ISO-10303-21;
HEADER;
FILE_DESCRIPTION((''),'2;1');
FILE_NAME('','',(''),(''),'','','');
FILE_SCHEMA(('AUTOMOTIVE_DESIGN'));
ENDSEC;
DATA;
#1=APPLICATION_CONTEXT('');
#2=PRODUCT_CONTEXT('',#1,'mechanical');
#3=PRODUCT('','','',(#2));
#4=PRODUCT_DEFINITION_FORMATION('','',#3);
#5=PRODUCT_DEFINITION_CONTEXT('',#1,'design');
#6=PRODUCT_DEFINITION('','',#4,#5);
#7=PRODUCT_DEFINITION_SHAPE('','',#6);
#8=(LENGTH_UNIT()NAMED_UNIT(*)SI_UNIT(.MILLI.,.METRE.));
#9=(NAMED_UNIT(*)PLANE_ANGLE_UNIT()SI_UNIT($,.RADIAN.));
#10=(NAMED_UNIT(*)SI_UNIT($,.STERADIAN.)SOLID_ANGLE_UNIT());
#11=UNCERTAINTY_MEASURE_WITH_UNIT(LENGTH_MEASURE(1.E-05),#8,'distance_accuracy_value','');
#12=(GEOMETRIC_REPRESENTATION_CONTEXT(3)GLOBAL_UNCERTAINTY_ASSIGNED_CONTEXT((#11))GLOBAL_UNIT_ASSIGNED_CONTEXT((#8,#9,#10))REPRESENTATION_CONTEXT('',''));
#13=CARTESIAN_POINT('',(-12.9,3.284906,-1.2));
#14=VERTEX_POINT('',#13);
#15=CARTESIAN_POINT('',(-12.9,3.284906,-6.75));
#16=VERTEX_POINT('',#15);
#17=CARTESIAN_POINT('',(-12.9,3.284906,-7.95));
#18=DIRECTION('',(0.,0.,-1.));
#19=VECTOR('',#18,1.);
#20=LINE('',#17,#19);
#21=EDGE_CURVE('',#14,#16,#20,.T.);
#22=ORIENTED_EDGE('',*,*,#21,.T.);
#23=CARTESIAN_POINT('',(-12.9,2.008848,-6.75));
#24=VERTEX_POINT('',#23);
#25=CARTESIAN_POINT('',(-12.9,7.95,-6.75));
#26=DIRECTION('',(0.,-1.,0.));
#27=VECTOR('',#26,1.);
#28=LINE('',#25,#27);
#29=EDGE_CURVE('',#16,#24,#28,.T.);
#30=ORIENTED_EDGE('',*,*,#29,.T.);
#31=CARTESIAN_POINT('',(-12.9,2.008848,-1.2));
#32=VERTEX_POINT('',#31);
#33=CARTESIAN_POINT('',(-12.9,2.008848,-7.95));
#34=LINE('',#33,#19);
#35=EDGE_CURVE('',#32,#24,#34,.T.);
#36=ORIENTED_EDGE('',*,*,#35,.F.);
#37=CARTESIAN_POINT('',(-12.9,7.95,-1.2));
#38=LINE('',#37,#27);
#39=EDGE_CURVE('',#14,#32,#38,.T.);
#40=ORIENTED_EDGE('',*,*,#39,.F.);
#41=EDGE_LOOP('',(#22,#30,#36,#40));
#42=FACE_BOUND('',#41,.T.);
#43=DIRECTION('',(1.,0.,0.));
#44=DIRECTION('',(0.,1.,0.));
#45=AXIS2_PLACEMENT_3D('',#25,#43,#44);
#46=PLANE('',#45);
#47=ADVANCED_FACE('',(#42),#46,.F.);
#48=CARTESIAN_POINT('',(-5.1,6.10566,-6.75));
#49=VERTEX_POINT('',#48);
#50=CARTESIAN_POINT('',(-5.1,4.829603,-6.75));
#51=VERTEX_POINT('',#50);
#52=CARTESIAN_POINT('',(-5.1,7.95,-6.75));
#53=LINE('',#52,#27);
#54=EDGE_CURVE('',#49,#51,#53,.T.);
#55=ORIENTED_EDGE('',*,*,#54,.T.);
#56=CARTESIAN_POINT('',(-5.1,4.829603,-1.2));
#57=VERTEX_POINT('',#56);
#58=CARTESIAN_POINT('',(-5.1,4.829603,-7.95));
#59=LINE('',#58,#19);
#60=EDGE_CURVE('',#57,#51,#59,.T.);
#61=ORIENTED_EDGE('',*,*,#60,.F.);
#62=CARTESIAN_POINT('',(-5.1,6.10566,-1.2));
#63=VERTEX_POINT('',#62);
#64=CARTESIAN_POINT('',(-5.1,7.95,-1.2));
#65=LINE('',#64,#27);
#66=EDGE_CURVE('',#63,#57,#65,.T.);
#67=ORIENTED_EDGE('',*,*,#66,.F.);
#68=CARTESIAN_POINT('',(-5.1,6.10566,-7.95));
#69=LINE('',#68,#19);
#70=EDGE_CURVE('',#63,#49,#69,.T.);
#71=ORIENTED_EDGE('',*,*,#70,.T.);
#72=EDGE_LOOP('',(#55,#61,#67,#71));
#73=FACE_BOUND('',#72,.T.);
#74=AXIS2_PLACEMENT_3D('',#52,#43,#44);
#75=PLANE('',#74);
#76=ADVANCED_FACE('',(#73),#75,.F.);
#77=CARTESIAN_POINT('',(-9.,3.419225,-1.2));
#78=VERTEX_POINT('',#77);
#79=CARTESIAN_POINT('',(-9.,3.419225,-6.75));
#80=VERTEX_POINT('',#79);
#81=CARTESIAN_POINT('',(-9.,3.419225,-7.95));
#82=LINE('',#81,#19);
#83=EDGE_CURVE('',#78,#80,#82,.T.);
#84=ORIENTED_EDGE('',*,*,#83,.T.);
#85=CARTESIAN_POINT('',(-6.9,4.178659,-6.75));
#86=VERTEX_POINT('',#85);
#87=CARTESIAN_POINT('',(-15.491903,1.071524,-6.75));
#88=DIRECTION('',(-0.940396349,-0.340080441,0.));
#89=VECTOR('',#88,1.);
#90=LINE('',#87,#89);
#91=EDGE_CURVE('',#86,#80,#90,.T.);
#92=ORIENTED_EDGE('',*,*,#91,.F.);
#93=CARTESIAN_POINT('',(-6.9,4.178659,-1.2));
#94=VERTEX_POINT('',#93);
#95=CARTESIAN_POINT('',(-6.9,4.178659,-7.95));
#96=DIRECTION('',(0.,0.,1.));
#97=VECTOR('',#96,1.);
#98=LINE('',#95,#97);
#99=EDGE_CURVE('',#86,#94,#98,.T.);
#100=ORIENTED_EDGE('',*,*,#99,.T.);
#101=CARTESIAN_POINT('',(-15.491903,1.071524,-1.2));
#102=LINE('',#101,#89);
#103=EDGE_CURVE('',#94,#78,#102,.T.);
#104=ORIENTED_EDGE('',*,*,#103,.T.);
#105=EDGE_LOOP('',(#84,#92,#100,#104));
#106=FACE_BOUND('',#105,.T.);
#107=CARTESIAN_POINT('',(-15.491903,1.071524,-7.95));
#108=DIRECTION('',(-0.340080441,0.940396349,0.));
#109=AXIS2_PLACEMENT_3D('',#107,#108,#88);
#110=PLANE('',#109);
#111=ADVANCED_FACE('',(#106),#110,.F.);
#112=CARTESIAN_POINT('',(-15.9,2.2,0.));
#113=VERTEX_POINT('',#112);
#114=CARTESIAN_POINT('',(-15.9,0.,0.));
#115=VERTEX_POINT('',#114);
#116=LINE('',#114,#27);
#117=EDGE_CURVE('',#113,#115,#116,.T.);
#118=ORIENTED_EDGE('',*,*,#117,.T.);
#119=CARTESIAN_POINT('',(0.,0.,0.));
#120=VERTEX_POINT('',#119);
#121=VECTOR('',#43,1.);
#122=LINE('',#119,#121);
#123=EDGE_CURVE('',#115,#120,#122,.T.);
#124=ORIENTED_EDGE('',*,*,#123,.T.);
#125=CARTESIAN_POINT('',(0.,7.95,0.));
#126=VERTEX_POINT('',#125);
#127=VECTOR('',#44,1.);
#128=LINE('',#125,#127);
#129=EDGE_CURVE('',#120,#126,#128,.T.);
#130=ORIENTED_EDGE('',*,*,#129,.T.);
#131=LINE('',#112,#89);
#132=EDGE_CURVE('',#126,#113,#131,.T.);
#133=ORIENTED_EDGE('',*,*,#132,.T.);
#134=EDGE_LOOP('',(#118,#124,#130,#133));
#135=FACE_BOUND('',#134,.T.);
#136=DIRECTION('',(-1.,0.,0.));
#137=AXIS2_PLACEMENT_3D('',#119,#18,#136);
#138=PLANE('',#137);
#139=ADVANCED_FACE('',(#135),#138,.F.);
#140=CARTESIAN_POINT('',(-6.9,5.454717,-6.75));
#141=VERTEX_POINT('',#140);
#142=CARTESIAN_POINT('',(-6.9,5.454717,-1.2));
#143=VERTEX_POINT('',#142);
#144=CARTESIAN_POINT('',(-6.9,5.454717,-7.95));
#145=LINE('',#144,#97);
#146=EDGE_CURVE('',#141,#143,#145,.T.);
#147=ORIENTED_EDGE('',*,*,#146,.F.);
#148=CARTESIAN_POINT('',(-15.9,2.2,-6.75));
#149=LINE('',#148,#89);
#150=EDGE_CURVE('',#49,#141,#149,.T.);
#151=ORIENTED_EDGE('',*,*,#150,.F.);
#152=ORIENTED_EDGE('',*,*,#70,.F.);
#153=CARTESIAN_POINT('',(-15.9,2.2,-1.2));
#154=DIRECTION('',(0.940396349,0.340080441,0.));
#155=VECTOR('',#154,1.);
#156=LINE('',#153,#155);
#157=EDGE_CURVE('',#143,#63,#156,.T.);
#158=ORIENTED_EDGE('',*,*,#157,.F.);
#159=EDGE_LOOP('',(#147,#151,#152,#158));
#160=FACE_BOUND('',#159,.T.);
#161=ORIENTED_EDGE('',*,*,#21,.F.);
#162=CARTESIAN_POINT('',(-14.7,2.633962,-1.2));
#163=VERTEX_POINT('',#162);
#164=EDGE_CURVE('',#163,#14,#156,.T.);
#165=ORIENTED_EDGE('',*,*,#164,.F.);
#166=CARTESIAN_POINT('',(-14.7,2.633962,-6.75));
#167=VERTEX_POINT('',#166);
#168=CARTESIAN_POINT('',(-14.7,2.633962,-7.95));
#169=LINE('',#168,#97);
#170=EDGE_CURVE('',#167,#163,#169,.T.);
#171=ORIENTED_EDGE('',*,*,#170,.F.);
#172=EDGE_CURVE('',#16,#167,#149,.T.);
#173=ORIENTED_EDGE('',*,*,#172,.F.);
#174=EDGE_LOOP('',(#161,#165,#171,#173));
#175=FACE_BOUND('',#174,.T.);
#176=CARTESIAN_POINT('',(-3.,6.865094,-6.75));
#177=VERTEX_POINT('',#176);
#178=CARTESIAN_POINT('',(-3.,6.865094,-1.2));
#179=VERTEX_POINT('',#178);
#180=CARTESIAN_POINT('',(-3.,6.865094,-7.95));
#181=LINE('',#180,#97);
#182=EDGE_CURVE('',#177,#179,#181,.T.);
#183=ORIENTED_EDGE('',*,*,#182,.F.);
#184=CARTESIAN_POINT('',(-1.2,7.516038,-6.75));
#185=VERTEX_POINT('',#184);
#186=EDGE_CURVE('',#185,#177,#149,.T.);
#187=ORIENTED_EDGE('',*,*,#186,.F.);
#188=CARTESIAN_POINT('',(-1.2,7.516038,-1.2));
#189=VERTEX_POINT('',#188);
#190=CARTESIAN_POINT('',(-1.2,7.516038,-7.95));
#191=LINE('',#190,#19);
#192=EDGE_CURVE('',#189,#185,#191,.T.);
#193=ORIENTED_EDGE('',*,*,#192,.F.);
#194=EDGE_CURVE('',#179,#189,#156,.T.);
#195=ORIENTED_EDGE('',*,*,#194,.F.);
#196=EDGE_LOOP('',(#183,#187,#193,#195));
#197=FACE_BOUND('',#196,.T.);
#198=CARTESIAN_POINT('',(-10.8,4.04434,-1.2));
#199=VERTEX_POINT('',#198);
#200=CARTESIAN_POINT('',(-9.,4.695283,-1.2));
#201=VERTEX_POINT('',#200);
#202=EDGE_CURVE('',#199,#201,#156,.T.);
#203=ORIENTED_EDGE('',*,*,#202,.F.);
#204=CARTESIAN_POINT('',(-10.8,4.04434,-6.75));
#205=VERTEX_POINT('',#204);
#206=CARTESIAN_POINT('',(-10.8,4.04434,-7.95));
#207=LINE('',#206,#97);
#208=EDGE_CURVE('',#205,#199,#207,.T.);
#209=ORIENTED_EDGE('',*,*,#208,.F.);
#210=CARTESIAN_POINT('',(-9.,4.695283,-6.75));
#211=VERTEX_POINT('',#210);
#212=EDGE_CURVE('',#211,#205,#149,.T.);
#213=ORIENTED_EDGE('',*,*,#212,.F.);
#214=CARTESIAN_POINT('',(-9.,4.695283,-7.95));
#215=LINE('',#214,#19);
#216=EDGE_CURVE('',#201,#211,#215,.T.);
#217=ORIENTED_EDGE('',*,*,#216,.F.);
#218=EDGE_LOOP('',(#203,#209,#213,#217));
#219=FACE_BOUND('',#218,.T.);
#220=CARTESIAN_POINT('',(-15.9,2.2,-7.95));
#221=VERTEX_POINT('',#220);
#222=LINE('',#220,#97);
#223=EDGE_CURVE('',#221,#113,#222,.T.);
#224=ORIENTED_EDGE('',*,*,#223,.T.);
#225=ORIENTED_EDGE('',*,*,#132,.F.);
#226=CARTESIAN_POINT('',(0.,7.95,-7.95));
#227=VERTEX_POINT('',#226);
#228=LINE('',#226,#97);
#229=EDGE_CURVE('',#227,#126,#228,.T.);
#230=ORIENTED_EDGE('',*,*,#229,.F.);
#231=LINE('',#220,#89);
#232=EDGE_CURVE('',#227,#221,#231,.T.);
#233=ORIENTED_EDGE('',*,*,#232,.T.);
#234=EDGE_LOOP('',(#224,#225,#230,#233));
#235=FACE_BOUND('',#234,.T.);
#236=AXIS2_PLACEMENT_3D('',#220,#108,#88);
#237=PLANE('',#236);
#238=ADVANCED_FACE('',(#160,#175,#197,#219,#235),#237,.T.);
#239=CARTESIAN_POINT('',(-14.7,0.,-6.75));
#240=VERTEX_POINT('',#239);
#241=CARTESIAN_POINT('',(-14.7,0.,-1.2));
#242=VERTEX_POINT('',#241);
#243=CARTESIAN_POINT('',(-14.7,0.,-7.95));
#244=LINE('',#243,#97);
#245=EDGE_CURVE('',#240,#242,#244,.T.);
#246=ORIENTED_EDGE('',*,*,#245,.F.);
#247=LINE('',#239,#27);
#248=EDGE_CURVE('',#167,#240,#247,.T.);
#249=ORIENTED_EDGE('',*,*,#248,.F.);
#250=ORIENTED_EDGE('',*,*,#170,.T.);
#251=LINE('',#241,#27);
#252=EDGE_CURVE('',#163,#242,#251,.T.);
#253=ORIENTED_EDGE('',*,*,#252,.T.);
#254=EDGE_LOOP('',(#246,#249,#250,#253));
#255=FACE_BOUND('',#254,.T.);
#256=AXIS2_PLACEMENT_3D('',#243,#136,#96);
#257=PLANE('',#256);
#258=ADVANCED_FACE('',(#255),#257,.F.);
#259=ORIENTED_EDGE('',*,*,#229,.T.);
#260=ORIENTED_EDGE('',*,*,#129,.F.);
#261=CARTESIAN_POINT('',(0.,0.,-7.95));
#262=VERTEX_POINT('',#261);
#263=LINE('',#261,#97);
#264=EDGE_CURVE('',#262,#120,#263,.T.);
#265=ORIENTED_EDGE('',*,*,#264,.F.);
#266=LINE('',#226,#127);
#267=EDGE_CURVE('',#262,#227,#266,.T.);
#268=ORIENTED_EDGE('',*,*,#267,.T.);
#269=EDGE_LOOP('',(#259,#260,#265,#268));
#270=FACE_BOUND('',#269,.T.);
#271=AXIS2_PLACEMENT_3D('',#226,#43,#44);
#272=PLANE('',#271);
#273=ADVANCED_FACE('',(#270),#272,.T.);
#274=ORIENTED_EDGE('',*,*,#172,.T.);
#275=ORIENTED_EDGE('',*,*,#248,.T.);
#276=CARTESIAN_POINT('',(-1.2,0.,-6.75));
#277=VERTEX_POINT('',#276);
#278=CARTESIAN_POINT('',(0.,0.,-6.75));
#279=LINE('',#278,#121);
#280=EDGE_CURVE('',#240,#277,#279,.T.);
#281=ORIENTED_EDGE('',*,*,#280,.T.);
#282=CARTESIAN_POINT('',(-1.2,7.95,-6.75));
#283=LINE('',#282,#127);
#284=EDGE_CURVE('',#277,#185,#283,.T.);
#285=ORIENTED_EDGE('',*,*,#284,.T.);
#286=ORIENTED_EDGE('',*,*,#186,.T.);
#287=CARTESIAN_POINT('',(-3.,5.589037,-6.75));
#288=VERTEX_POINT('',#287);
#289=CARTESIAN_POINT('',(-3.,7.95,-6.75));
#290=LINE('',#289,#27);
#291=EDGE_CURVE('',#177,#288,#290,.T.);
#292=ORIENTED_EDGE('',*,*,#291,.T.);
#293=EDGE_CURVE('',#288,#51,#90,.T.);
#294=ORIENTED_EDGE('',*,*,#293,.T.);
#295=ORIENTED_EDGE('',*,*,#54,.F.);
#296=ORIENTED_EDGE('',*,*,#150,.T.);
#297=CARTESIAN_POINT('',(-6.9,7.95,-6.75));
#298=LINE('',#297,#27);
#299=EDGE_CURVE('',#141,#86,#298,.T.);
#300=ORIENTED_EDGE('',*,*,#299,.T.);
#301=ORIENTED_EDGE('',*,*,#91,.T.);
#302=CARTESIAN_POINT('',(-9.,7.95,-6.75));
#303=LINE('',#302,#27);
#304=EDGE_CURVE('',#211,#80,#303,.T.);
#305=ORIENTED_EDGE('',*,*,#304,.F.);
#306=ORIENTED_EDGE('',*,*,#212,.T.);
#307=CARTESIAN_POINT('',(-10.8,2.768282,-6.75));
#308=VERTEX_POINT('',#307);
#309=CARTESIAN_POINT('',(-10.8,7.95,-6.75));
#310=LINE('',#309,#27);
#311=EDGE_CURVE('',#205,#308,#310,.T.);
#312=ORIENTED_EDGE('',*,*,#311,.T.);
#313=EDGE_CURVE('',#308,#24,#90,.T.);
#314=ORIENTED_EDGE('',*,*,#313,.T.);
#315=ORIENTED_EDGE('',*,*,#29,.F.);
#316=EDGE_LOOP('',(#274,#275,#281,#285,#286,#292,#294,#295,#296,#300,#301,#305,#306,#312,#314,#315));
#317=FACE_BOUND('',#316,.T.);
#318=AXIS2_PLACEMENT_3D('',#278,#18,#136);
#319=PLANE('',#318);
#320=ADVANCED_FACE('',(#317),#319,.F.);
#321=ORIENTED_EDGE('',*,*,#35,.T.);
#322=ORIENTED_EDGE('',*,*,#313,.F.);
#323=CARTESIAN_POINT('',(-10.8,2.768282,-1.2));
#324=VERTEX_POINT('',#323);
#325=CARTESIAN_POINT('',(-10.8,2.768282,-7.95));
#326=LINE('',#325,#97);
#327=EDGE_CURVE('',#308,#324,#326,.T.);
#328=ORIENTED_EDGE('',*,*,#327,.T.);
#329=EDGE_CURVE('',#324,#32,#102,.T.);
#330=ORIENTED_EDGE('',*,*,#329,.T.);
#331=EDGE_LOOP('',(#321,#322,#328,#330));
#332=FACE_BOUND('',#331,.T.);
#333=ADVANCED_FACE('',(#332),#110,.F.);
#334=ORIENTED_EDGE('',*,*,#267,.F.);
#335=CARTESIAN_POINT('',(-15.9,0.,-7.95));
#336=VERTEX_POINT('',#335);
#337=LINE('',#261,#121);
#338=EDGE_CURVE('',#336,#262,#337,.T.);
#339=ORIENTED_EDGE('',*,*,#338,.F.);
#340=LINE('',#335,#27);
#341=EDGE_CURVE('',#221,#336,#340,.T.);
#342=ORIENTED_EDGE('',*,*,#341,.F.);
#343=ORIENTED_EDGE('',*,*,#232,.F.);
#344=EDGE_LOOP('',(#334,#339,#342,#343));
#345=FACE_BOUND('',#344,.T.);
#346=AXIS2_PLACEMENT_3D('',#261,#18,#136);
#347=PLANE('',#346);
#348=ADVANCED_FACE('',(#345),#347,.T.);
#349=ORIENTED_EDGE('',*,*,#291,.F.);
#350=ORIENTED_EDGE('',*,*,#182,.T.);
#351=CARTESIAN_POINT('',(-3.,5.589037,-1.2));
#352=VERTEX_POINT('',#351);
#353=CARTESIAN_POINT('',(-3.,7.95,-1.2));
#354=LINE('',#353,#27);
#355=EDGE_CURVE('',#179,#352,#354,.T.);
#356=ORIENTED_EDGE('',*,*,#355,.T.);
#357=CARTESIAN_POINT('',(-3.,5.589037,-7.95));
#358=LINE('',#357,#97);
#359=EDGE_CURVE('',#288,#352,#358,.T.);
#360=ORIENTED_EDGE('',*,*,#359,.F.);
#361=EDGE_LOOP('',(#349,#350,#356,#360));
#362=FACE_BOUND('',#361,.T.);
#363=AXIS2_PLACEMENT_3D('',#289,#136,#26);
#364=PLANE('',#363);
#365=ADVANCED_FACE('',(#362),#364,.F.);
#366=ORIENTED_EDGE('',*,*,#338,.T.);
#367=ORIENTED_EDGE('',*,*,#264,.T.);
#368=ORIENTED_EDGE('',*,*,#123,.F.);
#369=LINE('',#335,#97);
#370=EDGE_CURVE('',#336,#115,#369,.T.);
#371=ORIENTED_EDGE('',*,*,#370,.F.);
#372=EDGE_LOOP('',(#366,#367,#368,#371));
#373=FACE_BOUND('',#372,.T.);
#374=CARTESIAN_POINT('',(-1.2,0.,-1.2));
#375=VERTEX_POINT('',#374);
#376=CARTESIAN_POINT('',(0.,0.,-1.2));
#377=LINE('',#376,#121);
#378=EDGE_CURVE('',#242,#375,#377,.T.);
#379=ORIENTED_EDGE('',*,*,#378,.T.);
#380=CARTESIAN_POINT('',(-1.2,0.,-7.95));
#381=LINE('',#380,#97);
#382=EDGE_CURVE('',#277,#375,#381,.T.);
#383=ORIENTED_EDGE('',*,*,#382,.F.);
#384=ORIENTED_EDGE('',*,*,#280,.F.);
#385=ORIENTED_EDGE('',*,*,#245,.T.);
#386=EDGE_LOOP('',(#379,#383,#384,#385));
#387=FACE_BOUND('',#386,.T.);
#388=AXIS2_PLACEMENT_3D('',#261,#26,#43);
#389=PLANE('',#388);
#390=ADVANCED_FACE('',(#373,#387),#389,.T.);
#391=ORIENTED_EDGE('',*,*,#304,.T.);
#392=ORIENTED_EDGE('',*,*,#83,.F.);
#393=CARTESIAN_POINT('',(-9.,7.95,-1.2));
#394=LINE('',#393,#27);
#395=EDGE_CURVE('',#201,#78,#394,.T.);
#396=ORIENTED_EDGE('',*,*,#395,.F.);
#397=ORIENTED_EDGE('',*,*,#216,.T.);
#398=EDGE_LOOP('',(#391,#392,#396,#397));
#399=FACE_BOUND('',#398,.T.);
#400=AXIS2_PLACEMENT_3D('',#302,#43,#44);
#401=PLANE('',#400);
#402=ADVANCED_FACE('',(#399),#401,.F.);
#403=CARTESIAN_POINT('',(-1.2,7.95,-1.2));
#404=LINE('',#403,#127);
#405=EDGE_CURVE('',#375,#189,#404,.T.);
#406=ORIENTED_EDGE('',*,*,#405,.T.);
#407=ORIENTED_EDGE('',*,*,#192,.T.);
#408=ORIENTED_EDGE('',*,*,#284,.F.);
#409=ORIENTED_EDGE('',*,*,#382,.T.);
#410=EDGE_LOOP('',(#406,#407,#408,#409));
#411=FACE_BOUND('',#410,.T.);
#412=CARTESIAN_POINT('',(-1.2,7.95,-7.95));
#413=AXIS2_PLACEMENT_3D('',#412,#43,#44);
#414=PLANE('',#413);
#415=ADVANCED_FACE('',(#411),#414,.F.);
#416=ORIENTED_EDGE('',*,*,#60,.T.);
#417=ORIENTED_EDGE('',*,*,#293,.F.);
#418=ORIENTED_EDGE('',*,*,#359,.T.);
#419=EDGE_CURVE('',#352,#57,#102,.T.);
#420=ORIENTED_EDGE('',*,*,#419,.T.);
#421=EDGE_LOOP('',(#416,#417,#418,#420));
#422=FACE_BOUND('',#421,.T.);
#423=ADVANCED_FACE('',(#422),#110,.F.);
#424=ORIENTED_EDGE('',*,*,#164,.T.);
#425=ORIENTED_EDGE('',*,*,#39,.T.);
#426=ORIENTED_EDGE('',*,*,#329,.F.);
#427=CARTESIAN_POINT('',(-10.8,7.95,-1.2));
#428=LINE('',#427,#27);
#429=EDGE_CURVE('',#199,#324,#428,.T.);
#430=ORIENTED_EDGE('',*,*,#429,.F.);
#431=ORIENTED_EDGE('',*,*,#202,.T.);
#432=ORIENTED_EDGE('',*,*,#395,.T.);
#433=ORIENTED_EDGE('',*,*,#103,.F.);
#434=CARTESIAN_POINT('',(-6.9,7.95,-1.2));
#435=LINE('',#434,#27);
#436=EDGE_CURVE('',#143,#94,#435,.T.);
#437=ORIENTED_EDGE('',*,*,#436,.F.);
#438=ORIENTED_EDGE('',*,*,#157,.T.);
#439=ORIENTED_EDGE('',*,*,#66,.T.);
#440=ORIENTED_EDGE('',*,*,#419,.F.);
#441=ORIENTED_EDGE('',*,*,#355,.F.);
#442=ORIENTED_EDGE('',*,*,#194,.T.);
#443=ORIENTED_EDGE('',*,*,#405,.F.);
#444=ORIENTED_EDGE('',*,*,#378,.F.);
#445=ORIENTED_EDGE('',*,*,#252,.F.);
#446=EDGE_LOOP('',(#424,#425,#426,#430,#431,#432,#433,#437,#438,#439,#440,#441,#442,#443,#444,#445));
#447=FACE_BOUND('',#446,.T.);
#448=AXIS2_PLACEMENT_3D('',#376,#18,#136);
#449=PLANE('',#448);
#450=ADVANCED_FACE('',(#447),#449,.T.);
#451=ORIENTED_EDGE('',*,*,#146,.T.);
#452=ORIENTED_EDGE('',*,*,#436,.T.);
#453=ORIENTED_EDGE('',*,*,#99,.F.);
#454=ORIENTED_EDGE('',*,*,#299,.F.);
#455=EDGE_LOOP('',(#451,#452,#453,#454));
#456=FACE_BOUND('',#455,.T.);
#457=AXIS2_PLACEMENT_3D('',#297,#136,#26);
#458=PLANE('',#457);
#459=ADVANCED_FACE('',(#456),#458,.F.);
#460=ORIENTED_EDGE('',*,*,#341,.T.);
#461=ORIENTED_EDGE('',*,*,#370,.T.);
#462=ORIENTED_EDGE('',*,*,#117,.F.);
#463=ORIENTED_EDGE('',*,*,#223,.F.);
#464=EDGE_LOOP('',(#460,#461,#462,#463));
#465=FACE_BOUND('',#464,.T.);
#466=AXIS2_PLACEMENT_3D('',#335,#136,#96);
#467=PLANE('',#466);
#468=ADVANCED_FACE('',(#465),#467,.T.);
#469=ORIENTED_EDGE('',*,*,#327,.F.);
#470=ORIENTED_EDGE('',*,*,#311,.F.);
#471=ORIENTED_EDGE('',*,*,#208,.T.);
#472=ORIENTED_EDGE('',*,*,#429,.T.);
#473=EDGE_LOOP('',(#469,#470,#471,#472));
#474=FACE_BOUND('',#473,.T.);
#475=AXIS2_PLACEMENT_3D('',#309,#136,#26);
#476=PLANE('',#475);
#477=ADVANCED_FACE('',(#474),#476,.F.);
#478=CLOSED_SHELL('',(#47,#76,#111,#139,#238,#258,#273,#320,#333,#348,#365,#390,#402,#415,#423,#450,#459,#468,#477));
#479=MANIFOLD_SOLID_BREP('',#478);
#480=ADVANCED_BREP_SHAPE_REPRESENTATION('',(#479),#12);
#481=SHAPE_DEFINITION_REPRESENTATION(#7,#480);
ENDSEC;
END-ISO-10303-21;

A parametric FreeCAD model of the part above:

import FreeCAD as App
import Part
import Sketcher

V = App.Vector
Q = App.Units.Quantity


def faces_at(feature, points):
    """Names of the faces that lie closest to the given points."""
    faces = feature.Shape.Faces
    near = lambda p: min(range(len(faces)), key=lambda i: faces[i].distToShape(Part.Vertex(*p))[0])
    return sorted({f"Face{near(p) + 1}" for p in points})

doc = App.newDocument("Part")
body = doc.addObject("PartDesign::Body", "Body")

# Sketch on XY plane
sketch1 = body.newObject("Sketcher::SketchObject", "Sketch")
sketch1.AttachmentSupport = (doc.getObject("XY_Plane"), [""])
sketch1.MapMode = "FlatFace"
sketch1.addGeometry(Part.LineSegment(V(-15.9, 0, 0), V(0, 0, 0)), False)
sketch1.addGeometry(Part.LineSegment(V(0, 0, 0), V(0, 7.95, 0)), False)
sketch1.addGeometry(Part.LineSegment(V(0, 7.95, 0), V(-15.9, 2.2, 0)), False)
sketch1.addGeometry(Part.LineSegment(V(-15.9, 2.2, 0), V(-15.9, 0, 0)), False)
sketch1.addConstraint(Sketcher.Constraint("Coincident", 0, 2, 1, 1))
sketch1.addConstraint(Sketcher.Constraint("Coincident", 1, 2, 2, 1))
sketch1.addConstraint(Sketcher.Constraint("Coincident", 2, 2, 3, 1))
sketch1.addConstraint(Sketcher.Constraint("Coincident", 3, 2, 0, 1))
sketch1.addConstraint(Sketcher.Constraint("Horizontal", 0))
sketch1.addConstraint(Sketcher.Constraint("Vertical", 1))
sketch1.addConstraint(Sketcher.Constraint("Vertical", 3))
sketch1.addConstraint(Sketcher.Constraint("Coincident", 0, 2, -1, 1))
sketch1.addConstraint(Sketcher.Constraint("DistanceX", 0, 1, 0, 2, Q("15.9 mm")))
sketch1.addConstraint(Sketcher.Constraint("DistanceY", 3, 2, 3, 1, Q("2.2 mm")))
sketch1.addConstraint(Sketcher.Constraint("DistanceY", 1, 1, 1, 2, Q("7.95 mm")))
pad1 = body.newObject("PartDesign::Pad", "Pad")
pad1.Profile = sketch1
pad1.Length = 7.95
pad1.Reversed = True
doc.recompute()

thickness = body.newObject("PartDesign::Thickness", "Thickness")
thickness.Base = (pad1, faces_at(pad1, [(-7.95, 0, -3.975)]))
thickness.Value = 1.2
thickness.Reversed = True
thickness.Join = "Intersection"

# Sketch on XZ plane
sketch2 = body.newObject("Sketcher::SketchObject", "Sketch001")
sketch2.AttachmentSupport = (doc.getObject("XZ_Plane"), [""])
sketch2.MapMode = "FlatFace"
sketch2.addGeometry(Part.LineSegment(V(-14.7, -1.2, 0), V(-14.7, -6.75, 0)), False)
sketch2.addGeometry(Part.LineSegment(V(-14.7, -6.75, 0), V(-12.9, -6.75, 0)), False)
sketch2.addGeometry(Part.LineSegment(V(-12.9, -6.75, 0), V(-12.9, -1.2, 0)), False)
sketch2.addGeometry(Part.LineSegment(V(-12.9, -1.2, 0), V(-14.7, -1.2, 0)), False)
sketch2.addConstraint(Sketcher.Constraint("Coincident", 0, 2, 1, 1))
sketch2.addConstraint(Sketcher.Constraint("Coincident", 1, 2, 2, 1))
sketch2.addConstraint(Sketcher.Constraint("Coincident", 2, 2, 3, 1))
sketch2.addConstraint(Sketcher.Constraint("Coincident", 3, 2, 0, 1))
sketch2.addConstraint(Sketcher.Constraint("Vertical", 0))
sketch2.addConstraint(Sketcher.Constraint("Horizontal", 1))
sketch2.addConstraint(Sketcher.Constraint("Vertical", 2))
sketch2.addConstraint(Sketcher.Constraint("Horizontal", 3))
sketch2.addConstraint(Sketcher.Constraint("DistanceX", 1, 1, 1, 2, Q("1.8 mm")))
sketch2.addConstraint(Sketcher.Constraint("DistanceY", 0, 2, 0, 1, Q("5.55 mm")))
sketch2.addConstraint(Sketcher.Constraint("DistanceX", 0, 2, -1, 1, Q("14.7 mm")))
sketch2.addConstraint(Sketcher.Constraint("DistanceY", 2, 2, -1, 1, Q("1.2 mm")))
pocket1 = body.newObject("PartDesign::Pocket", "Pocket")
pocket1.Profile = sketch2
pocket1.Type = "ThroughAll"
doc.recompute()

linearpattern = body.newObject("PartDesign::LinearPattern", "LinearPattern")
linearpattern.Originals = [pocket1]
linearpattern.Direction = (doc.getObject("X_Axis"), [""])
linearpattern.Mode = "offset"
linearpattern.Offset = 3.9
linearpattern.Occurrences = 4
body.Tip = linearpattern

doc.recompute()
